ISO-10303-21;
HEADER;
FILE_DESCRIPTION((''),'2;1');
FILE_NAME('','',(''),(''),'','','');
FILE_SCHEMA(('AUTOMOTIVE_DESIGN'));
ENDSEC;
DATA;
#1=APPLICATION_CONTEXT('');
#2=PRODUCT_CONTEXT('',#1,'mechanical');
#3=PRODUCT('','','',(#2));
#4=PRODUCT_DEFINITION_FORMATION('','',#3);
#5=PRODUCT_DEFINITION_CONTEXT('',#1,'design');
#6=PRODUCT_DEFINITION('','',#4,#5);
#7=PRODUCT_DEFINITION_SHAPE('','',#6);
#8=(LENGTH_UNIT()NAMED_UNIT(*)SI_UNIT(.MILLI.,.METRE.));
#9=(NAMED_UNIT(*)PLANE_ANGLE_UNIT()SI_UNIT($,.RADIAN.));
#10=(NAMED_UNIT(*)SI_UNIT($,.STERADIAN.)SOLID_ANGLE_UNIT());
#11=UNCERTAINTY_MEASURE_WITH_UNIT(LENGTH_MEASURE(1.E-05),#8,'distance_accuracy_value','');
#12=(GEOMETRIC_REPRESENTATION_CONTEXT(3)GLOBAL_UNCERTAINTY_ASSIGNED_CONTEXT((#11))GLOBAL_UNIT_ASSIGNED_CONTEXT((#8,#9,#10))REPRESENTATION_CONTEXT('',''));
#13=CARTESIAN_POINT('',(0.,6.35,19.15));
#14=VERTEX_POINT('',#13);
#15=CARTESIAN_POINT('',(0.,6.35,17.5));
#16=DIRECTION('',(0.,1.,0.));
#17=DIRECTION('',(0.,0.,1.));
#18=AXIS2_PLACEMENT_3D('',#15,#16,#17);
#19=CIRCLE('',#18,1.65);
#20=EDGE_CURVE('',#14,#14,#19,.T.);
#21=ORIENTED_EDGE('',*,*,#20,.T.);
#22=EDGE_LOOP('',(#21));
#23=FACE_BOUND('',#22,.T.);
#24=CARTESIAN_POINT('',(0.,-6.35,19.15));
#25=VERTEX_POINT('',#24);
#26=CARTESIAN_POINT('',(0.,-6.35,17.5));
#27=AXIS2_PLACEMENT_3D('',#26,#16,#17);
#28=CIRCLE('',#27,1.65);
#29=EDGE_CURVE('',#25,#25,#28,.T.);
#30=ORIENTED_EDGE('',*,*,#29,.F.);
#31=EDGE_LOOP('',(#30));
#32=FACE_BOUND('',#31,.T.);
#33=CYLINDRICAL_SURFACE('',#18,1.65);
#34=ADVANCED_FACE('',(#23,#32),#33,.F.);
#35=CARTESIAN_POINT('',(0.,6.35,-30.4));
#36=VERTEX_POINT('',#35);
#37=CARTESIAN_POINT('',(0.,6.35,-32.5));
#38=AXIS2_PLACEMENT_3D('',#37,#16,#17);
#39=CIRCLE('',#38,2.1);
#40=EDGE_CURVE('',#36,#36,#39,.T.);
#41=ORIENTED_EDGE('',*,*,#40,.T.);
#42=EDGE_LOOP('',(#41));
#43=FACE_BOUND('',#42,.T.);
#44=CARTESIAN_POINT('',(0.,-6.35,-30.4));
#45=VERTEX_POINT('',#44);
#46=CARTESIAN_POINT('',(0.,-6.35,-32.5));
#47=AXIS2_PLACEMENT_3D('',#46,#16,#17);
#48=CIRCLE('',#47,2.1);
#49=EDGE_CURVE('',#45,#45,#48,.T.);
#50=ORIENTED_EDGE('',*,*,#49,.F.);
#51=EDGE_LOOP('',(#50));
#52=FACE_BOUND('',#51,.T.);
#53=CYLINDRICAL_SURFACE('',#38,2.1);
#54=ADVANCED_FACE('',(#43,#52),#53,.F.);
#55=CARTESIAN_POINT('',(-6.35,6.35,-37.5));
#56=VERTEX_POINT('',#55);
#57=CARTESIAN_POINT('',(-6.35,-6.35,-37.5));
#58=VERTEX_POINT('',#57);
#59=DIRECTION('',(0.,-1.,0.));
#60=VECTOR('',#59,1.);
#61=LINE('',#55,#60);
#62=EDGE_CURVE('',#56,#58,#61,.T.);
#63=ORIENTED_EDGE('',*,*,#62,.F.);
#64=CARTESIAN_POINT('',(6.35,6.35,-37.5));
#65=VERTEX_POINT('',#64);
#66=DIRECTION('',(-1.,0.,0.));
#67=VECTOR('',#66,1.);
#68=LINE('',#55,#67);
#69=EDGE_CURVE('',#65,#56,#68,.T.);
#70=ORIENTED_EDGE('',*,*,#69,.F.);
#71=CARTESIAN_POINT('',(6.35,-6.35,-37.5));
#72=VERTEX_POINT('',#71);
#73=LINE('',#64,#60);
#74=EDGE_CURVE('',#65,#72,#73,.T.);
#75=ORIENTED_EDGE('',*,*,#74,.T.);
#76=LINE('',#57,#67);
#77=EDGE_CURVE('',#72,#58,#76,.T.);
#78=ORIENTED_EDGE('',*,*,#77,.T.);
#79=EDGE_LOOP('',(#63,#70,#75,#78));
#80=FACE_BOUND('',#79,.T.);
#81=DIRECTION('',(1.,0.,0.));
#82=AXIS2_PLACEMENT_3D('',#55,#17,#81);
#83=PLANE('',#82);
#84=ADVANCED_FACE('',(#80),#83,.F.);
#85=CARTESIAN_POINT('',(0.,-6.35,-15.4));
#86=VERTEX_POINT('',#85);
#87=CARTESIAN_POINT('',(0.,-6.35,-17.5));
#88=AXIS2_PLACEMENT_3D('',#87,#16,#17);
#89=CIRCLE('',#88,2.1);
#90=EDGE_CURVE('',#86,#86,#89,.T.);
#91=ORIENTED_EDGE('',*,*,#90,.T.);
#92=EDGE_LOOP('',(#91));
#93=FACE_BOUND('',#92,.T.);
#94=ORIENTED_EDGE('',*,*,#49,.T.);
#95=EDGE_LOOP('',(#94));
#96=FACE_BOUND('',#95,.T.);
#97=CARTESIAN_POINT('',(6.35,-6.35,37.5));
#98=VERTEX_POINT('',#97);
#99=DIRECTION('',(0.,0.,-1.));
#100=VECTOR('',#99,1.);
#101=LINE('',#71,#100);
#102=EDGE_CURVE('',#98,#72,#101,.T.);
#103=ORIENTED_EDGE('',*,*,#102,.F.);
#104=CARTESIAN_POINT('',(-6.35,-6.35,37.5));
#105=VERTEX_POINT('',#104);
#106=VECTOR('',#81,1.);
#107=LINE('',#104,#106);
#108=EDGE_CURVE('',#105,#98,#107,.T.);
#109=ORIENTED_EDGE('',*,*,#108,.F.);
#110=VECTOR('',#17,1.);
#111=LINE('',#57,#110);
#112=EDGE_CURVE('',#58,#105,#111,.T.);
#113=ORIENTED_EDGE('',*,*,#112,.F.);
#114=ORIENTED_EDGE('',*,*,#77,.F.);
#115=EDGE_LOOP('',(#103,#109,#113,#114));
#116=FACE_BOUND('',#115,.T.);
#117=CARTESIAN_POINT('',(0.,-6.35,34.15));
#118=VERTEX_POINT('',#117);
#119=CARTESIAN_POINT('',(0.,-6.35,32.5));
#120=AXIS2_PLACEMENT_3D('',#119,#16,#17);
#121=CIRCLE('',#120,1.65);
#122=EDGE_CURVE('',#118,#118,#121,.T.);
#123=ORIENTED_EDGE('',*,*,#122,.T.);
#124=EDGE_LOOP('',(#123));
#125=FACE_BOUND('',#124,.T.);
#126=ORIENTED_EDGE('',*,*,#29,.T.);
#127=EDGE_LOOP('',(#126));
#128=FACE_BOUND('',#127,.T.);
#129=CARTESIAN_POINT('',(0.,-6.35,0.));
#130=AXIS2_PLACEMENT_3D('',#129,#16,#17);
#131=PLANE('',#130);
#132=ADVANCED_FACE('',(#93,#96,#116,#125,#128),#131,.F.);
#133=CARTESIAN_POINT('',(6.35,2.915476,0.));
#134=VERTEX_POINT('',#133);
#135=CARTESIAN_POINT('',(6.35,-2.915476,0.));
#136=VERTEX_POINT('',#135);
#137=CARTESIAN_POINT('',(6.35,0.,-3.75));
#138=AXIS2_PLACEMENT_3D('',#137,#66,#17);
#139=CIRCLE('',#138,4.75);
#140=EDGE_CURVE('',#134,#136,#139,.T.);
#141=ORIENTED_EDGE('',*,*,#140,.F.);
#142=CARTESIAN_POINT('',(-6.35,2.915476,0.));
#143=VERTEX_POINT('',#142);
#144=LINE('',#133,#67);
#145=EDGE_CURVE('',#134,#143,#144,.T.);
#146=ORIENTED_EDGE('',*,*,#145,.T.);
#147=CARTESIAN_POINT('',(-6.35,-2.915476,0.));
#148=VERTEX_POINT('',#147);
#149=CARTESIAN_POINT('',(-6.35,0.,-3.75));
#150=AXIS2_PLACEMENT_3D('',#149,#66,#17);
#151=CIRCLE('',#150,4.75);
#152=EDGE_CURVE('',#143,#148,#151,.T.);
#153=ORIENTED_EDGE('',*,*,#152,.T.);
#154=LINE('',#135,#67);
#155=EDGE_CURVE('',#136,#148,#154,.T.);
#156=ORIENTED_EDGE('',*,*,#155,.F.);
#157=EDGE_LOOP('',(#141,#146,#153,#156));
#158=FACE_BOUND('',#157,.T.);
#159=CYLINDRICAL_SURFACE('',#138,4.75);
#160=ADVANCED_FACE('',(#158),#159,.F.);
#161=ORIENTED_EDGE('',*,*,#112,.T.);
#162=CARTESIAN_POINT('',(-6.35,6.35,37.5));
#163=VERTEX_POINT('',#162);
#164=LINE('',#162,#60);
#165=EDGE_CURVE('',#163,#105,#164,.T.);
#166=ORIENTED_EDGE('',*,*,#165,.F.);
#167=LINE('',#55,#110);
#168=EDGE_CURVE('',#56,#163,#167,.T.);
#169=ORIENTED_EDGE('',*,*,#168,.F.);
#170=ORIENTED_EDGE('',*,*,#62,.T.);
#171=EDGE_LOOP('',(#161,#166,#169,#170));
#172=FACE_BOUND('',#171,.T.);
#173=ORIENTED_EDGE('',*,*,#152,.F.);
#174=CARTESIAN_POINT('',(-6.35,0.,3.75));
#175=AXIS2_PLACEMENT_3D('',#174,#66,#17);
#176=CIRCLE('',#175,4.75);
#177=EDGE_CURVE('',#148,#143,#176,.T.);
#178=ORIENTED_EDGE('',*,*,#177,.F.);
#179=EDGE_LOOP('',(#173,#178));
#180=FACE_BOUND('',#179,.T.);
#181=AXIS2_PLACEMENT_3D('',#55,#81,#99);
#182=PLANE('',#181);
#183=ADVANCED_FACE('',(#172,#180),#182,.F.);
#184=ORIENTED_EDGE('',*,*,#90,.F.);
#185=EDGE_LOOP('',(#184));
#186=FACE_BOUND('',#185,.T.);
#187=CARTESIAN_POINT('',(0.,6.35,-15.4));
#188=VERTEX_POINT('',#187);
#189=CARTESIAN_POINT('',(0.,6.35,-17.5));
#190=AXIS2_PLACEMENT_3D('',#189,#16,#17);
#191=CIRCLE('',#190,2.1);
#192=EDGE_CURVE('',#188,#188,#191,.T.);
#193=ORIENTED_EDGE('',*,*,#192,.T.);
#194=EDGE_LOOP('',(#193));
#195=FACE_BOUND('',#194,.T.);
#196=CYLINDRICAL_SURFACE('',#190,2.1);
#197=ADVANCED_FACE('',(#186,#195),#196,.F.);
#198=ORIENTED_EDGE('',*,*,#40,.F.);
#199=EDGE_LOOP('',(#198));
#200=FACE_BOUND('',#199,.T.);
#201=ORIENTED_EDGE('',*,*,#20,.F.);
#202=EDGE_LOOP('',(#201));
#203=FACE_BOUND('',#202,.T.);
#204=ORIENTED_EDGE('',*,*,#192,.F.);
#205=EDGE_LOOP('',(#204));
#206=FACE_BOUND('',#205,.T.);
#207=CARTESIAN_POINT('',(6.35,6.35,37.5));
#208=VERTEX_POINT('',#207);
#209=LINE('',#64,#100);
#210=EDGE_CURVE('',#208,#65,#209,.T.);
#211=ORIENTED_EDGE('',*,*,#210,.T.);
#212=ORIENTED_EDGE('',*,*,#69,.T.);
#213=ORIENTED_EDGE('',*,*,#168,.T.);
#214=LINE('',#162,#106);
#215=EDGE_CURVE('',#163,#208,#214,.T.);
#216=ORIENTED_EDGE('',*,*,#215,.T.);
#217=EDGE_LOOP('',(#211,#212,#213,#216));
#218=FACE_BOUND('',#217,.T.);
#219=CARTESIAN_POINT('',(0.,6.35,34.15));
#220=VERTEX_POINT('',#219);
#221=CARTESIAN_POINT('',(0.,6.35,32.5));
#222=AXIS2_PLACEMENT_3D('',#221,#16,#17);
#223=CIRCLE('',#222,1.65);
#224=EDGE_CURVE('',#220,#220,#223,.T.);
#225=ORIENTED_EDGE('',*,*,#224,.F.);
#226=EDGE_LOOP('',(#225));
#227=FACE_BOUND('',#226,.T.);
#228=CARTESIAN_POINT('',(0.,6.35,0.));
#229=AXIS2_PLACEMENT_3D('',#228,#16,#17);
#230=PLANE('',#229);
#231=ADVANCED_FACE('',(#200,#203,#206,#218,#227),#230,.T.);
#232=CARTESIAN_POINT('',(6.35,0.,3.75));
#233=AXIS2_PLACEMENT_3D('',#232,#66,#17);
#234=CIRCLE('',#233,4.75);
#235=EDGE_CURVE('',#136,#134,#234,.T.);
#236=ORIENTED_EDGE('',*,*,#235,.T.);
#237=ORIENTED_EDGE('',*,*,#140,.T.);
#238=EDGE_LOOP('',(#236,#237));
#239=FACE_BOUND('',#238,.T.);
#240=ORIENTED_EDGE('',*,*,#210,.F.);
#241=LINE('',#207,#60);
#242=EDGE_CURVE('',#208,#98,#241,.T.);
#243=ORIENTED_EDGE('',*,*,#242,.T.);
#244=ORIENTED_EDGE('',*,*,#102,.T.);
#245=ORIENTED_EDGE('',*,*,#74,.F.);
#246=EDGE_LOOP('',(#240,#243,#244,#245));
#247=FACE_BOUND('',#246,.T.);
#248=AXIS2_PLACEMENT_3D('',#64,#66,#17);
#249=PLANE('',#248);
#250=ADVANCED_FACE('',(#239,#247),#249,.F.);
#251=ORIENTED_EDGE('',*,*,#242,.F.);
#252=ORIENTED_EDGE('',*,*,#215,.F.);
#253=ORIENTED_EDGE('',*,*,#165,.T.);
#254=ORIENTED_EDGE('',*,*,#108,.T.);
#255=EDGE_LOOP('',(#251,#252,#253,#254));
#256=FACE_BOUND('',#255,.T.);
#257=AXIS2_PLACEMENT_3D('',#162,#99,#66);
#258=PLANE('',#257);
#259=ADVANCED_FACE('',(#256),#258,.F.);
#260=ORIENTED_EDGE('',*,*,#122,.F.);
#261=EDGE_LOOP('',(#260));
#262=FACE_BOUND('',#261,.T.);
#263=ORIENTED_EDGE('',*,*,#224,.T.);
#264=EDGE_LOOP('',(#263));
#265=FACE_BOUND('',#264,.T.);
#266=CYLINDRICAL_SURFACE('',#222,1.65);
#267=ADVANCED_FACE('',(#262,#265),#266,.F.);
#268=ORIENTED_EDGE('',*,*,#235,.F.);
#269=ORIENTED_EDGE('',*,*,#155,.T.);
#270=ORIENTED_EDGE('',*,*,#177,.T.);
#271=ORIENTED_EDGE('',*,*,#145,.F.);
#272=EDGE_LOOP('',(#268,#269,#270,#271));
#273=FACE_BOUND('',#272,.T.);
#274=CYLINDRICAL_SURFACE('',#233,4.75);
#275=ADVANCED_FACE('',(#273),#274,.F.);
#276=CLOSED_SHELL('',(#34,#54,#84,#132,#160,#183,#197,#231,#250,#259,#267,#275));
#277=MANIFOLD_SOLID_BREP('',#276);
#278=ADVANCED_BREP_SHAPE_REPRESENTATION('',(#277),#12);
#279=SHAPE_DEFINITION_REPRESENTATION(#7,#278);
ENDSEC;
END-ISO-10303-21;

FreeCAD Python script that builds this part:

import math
import FreeCAD as App
import Part
import Sketcher

V = App.Vector

doc = App.newDocument("Part")
params = doc.addObject("Spreadsheet::Sheet", "Params")
for row, (alias, value) in enumerate([
    ("sketch1_height", "75 mm"),
    ("sketch1_width", "12.7 mm"),
    ("pad1_length", "12.7 mm"),
    ("sketch2_diameter", "3.3 mm"),
    ("hole_diameter", "3.3 mm"),
    ("sketch3_radius", "4.75 mm"),
    ("sketch4_diameter", "4.2 mm"),
    ("hole2_diameter", "4.2 mm"),
    ("hole2_depth", "15 mm"),
], start=1):
    params.set(f"A{row}", alias)
    params.set(f"B{row}", "=" + value)
    params.setAlias(f"B{row}", alias)

body = doc.addObject("PartDesign::Body", "Body")

sketch1 = body.newObject("Sketcher::SketchObject", "Sketch")
sketch1.AttachmentSupport = (doc.getObject("XZ_Plane"), [""])
sketch1.MapMode = "FlatFace"
sketch1.addGeometry([
    Part.LineSegment(V(-6.35, -37.5, 0), V(-6.35, 37.5, 0)),
    Part.LineSegment(V(-6.35, 37.5, 0), V(6.35, 37.5, 0)),
    Part.LineSegment(V(6.35, 37.5, 0), V(6.35, -37.5, 0)),
    Part.LineSegment(V(6.35, -37.5, 0), V(-6.35, -37.5, 0)),
], False)
sketch1.addConstraint([
    Sketcher.Constraint("Coincident", 0, 2, 1, 1),
    Sketcher.Constraint("Coincident", 1, 2, 2, 1),
    Sketcher.Constraint("Coincident", 2, 2, 3, 1),
    Sketcher.Constraint("Coincident", 3, 2, 0, 1),
    Sketcher.Constraint("Vertical", 0),
    Sketcher.Constraint("Horizontal", 1),
    Sketcher.Constraint("Vertical", 2),
    Sketcher.Constraint("Horizontal", 3),
    Sketcher.Constraint("Symmetric", 0, 2, 2, 2, -1, 1),
    Sketcher.Constraint("DistanceY", 0, 1, 0, 2, 75.0),
    Sketcher.Constraint("DistanceX", 1, 1, 1, 2, 12.7),
])
sketch1.setExpression("Constraints[9]", "Params.sketch1_height")
sketch1.setExpression("Constraints[10]", "Params.sketch1_width")
pad1 = body.newObject("PartDesign::Pad", "Pad")
pad1.Profile = sketch1
pad1.setExpression("Length", "Params.pad1_length")
pad1.Midplane = True

sketch2 = body.newObject("Sketcher::SketchObject", "Sketch001")
sketch2.AttachmentSupport = (doc.getObject("XZ_Plane"), [""])
sketch2.MapMode = "FlatFace"
sketch2.AttachmentOffset = App.Placement(V(0, 0, -6.35), App.Rotation())
sketch2.addGeometry([
    Part.Circle(V(0, 32.5, 0), V(0, 0, 1), 1.65),
    Part.Circle(V(0, 17.5, 0), V(0, 0, 1), 1.65),
], False)
sketch2.addConstraint([
    Sketcher.Constraint("Equal", 0, 1),
    Sketcher.Constraint("PointOnObject", 0, 3, -2),
    Sketcher.Constraint("PointOnObject", 1, 3, -2),
    Sketcher.Constraint("Diameter", 0, 3.3),
    Sketcher.Constraint("DistanceY", 1, 3, 0, 3, 15.0),
    Sketcher.Constraint("DistanceY", -1, 1, 0, 3, 32.5),
])
sketch2.setExpression("Constraints[3]", "Params.sketch2_diameter")
doc.recompute()
hole = body.newObject("PartDesign::Hole", "Hole")
hole.Profile = sketch2
hole.ThreadType = "None"
hole.setExpression("Diameter", "Params.hole_diameter")
hole.DepthType = "ThroughAll"
hole.Reversed = True

sketch3 = body.newObject("Sketcher::SketchObject", "Sketch002")
sketch3.AttachmentSupport = (doc.getObject("YZ_Plane"), [""])
sketch3.MapMode = "FlatFace"
sketch3.AttachmentOffset = App.Placement(V(0, 0, -6.35), App.Rotation())
sketch3.addGeometry([
    Part.ArcOfCircle(Part.Circle(V(0, 3.75, 0), V(0, 0, 1), 4.75), math.radians(-52.136354), math.radians(232.136354)),
    Part.ArcOfCircle(Part.Circle(V(0, -3.75, 0), V(0, 0, 1), 4.75), math.radians(127.863646), math.radians(412.136354)),
], False)
sketch3.addConstraint([
    Sketcher.Constraint("Coincident", 0, 1, 1, 2),
    Sketcher.Constraint("Coincident", 1, 1, 0, 2),
    Sketcher.Constraint("Equal", 0, 1),
    Sketcher.Constraint("Symmetric", 0, 3, 1, 3, -1, 1),
    Sketcher.Constraint("PointOnObject", 0, 3, -2),
    Sketcher.Constraint("Radius", 0, 4.75),
    Sketcher.Constraint("DistanceY", 1, 3, 0, 3, 7.5),
])
sketch3.setExpression("Constraints[5]", "Params.sketch3_radius")
pocket1 = body.newObject("PartDesign::Pocket", "Pocket")
pocket1.Profile = sketch3
pocket1.Type = "ThroughAll"
pocket1.Reversed = True

sketch4 = body.newObject("Sketcher::SketchObject", "Sketch003")
sketch4.AttachmentSupport = (doc.getObject("XZ_Plane"), [""])
sketch4.MapMode = "FlatFace"
sketch4.AttachmentOffset = App.Placement(V(0, 0, -6.35), App.Rotation())
sketch4.addGeometry([
    Part.Circle(V(0, -17.5, 0), V(0, 0, 1), 2.1),
    Part.Circle(V(0, -32.5, 0), V(0, 0, 1), 2.1),
], False)
sketch4.addConstraint([
    Sketcher.Constraint("Equal", 0, 1),
    Sketcher.Constraint("PointOnObject", 0, 3, -2),
    Sketcher.Constraint("PointOnObject", 1, 3, -2),
    Sketcher.Constraint("Diameter", 0, 4.2),
    Sketcher.Constraint("DistanceY", 1, 3, 0, 3, 15.0),
    Sketcher.Constraint("DistanceY", 0, 3, -1, 1, 17.5),
])
sketch4.setExpression("Constraints[3]", "Params.sketch4_diameter")
doc.recompute()
hole2 = body.newObject("PartDesign::Hole", "Hole001")
hole2.Profile = sketch4
hole2.ThreadType = "None"
hole2.setExpression("Diameter", "Params.hole2_diameter")
hole2.DepthType = "Dimension"
hole2.setExpression("Depth", "Params.hole2_depth")
hole2.DrillPoint = "Angled"
hole2.DrillPointAngle = 118
hole2.Reversed = True

doc.recompute()
